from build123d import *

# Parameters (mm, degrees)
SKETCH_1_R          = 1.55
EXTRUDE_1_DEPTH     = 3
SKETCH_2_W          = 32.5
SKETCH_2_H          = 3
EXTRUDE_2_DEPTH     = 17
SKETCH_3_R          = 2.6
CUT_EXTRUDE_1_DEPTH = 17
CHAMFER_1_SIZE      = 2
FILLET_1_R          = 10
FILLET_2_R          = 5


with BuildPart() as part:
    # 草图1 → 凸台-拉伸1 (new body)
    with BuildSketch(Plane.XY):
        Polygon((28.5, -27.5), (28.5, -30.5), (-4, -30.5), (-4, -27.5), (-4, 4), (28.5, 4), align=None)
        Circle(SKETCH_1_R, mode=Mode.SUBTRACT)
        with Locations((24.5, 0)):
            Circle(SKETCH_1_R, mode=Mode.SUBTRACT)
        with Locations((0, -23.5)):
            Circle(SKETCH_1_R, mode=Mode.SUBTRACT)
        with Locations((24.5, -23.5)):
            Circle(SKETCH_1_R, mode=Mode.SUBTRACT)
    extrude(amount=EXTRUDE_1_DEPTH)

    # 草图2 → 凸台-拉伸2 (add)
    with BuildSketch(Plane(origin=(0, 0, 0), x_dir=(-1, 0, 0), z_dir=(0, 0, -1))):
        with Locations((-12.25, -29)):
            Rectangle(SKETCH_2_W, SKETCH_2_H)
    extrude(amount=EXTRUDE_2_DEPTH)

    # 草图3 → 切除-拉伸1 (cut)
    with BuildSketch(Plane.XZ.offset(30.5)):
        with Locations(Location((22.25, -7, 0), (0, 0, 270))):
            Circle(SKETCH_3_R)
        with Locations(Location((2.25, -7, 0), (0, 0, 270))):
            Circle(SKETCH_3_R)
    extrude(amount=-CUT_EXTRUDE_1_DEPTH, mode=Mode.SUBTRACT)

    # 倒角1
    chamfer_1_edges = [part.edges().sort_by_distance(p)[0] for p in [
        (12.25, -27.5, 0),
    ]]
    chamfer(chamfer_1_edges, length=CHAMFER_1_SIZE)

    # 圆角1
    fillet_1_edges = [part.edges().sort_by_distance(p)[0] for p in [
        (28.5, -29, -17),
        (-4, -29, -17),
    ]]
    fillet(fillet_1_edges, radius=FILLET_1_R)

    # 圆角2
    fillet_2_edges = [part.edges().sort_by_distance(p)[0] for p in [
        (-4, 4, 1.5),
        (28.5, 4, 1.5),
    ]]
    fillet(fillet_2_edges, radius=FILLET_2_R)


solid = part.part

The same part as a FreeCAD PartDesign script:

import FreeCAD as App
import Part
import Sketcher

V = App.Vector
Q = App.Units.Quantity


def edges_at(feature, points):
    """Names of the edges that pass closest to the given points."""
    edges = feature.Shape.Edges
    near = lambda p: min(range(len(edges)), key=lambda i: edges[i].distToShape(Part.Vertex(*p))[0])
    return sorted({f"Edge{near(p) + 1}" for p in points})

doc = App.newDocument("Part")
params = doc.addObject("Spreadsheet::Sheet", "Params")
for row, (alias, value) in enumerate([
    ("sketch1_diameter", "3.1 mm"),
    ("sketch1_width", "32.5 mm"),
    ("sketch1_height", "34.5 mm"),
    ("pad1_length", "3 mm"),
    ("sketch2_height", "3 mm"),
    ("sketch2_width", "32.5 mm"),
    ("pad2_length", "17 mm"),
    ("sketch3_diameter", "5.2 mm"),
    ("pocket1_length", "17 mm"),
    ("chamfer_size", "2 mm"),
    ("fillet_radius", "10 mm"),
    ("fillet2_radius", "5 mm"),
], start=1):
    params.set(f"A{row}", alias)
    params.set(f"B{row}", "=" + value)
    params.setAlias(f"B{row}", alias)

body = doc.addObject("PartDesign::Body", "Body")

sketch1 = doc.addObject("Sketcher::SketchObject", "Sketch")
body.addObject(sketch1)
sketch1.AttachmentSupport = (doc.XY_Plane, [""])
sketch1.MapMode = "FlatFace"
sketch1.addGeometry(Part.LineSegment(V(28.5, -30.5, 0), V(28.5, 4, 0)), False)
sketch1.addGeometry(Part.LineSegment(V(28.5, 4, 0), V(-4, 4, 0)), False)
sketch1.addGeometry(Part.LineSegment(V(-4, 4, 0), V(-4, -30.5, 0)), False)
sketch1.addGeometry(Part.LineSegment(V(-4, -30.5, 0), V(28.5, -30.5, 0)), False)
sketch1.addGeometry(Part.Circle(V(24.5, -23.5, 0), V(0, 0, 1), 1.55), False)
sketch1.addGeometry(Part.Circle(V(0, -23.5, 0), V(0, 0, 1), 1.55), False)
sketch1.addGeometry(Part.Circle(V(24.5, 0, 0), V(0, 0, 1), 1.55), False)
sketch1.addGeometry(Part.Circle(V(0, 0, 0), V(0, 0, 1), 1.55), False)
sketch1.addConstraint(Sketcher.Constraint("Coincident", 0, 2, 1, 1))
sketch1.addConstraint(Sketcher.Constraint("Coincident", 1, 2, 2, 1))
sketch1.addConstraint(Sketcher.Constraint("Coincident", 2, 2, 3, 1))
sketch1.addConstraint(Sketcher.Constraint("Coincident", 3, 2, 0, 1))
sketch1.addConstraint(Sketcher.Constraint("Vertical", 0))
sketch1.addConstraint(Sketcher.Constraint("Horizontal", 1))
sketch1.addConstraint(Sketcher.Constraint("Vertical", 2))
sketch1.addConstraint(Sketcher.Constraint("Horizontal", 3))
sketch1.addConstraint(Sketcher.Constraint("Coincident", 7, 3, -1, 1))
sketch1.addConstraint(Sketcher.Constraint("Equal", 4, 5))
sketch1.addConstraint(Sketcher.Constraint("Equal", 5, 6))
sketch1.addConstraint(Sketcher.Constraint("Equal", 6, 7))
sketch1.addConstraint(Sketcher.Constraint("PointOnObject", 5, 3, -2))
sketch1.addConstraint(Sketcher.Constraint("PointOnObject", 6, 3, -1))
sketch1.addConstraint(Sketcher.Constraint("Horizontal", 4, 3, 5, 3))
sketch1.addConstraint(Sketcher.Constraint("Vertical", 4, 3, 6, 3))
sketch1.addConstraint(Sketcher.Constraint("Diameter", 4, Q("3.1 mm")))
sketch1.addConstraint(Sketcher.Constraint("DistanceX", 1, 2, 1, 1, Q("32.5 mm")))
sketch1.addConstraint(Sketcher.Constraint("DistanceY", 0, 1, 0, 2, Q("34.5 mm")))
sketch1.addConstraint(Sketcher.Constraint("DistanceY", -1, 1, 0, 2, Q("4 mm")))
sketch1.addConstraint(Sketcher.Constraint("DistanceX", 1, 2, -1, 1, Q("4 mm")))
sketch1.addConstraint(Sketcher.Constraint("DistanceX", 6, 3, 0, 2, Q("4 mm")))
sketch1.addConstraint(Sketcher.Constraint("DistanceY", 2, 2, 5, 3, Q("7 mm")))
sketch1.setExpression("Constraints[16]", "Params.sketch1_diameter")
sketch1.setExpression("Constraints[17]", "Params.sketch1_width")
sketch1.setExpression("Constraints[18]", "Params.sketch1_height")
pad1 = doc.addObject("PartDesign::Pad", "Pad")
body.addObject(pad1)
pad1.Profile = sketch1
pad1.setExpression("Length", "Params.pad1_length")

sketch2 = doc.addObject("Sketcher::SketchObject", "Sketch001")
body.addObject(sketch2)
sketch2.AttachmentSupport = (doc.XY_Plane, [""])
sketch2.MapMode = "FlatFace"
sketch2.addGeometry(Part.LineSegment(V(28.5, -27.5, 0), V(28.5, -30.5, 0)), False)
sketch2.addGeometry(Part.LineSegment(V(28.5, -30.5, 0), V(-4, -30.5, 0)), False)
sketch2.addGeometry(Part.LineSegment(V(-4, -30.5, 0), V(-4, -27.5, 0)), False)
sketch2.addGeometry(Part.LineSegment(V(-4, -27.5, 0), V(28.5, -27.5, 0)), False)
sketch2.addConstraint(Sketcher.Constraint("Coincident", 0, 2, 1, 1))
sketch2.addConstraint(Sketcher.Constraint("Coincident", 1, 2, 2, 1))
sketch2.addConstraint(Sketcher.Constraint("Coincident", 2, 2, 3, 1))
sketch2.addConstraint(Sketcher.Constraint("Coincident", 3, 2, 0, 1))
sketch2.addConstraint(Sketcher.Constraint("Vertical", 0))
sketch2.addConstraint(Sketcher.Constraint("Horizontal", 1))
sketch2.addConstraint(Sketcher.Constraint("Vertical", 2))
sketch2.addConstraint(Sketcher.Constraint("Horizontal", 3))
sketch2.addConstraint(Sketcher.Constraint("DistanceY", 0, 2, 0, 1, Q("3 mm")))
sketch2.addConstraint(Sketcher.Constraint("DistanceX", 1, 2, 1, 1, Q("32.5 mm")))
sketch2.addConstraint(Sketcher.Constraint("DistanceX", 1, 2, -1, 1, Q("4 mm")))
sketch2.addConstraint(Sketcher.Constraint("DistanceY", 0, 2, -1, 1, Q("30.5 mm")))
sketch2.setExpression("Constraints[8]", "Params.sketch2_height")
sketch2.setExpression("Constraints[9]", "Params.sketch2_width")
pad2 = doc.addObject("PartDesign::Pad", "Pad001")
body.addObject(pad2)
pad2.Profile = sketch2
pad2.setExpression("Length", "Params.pad2_length")
pad2.Reversed = True

sketch3 = doc.addObject("Sketcher::SketchObject", "Sketch002")
body.addObject(sketch3)
sketch3.AttachmentSupport = (doc.XZ_Plane, [""])
sketch3.MapMode = "FlatFace"
sketch3.AttachmentOffset = App.Placement(V(0, 0, 30.5), App.Rotation())
sketch3.addGeometry(Part.Circle(V(22.25, -7, 0), V(0, 0, 1), 2.6), False)
sketch3.addGeometry(Part.Circle(V(2.25, -7, 0), V(0, 0, 1), 2.6), False)
sketch3.addConstraint(Sketcher.Constraint("Equal", 0, 1))
sketch3.addConstraint(Sketcher.Constraint("Horizontal", 0, 3, 1, 3))
sketch3.addConstraint(Sketcher.Constraint("Diameter", 0, Q("5.2 mm")))
sketch3.addConstraint(Sketcher.Constraint("DistanceY", 0, 3, -1, 1, Q("7 mm")))
sketch3.addConstraint(Sketcher.Constraint("DistanceX", 1, 3, 0, 3, Q("20 mm")))
sketch3.addConstraint(Sketcher.Constraint("DistanceX", -1, 1, 0, 3, Q("22.25 mm")))
sketch3.setExpression("Constraints[2]", "Params.sketch3_diameter")
pocket1 = doc.addObject("PartDesign::Pocket", "Pocket")
body.addObject(pocket1)
pocket1.Profile = sketch3
pocket1.setExpression("Length", "Params.pocket1_length")
doc.recompute()

chamfer = doc.addObject("PartDesign::Chamfer", "Chamfer")
body.addObject(chamfer)
chamfer.Base = (pocket1, edges_at(pocket1, [(12.25, -27.5, 0)]))
chamfer.setExpression("Size", "Params.chamfer_size")
doc.recompute()

fillet = doc.addObject("PartDesign::Fillet", "Fillet")
body.addObject(fillet)
fillet.Base = (chamfer, edges_at(chamfer, [(28.5, -29, -17), (-4, -29, -17)]))
fillet.setExpression("Radius", "Params.fillet_radius")
doc.recompute()

fillet2 = doc.addObject("PartDesign::Fillet", "Fillet001")
body.addObject(fillet2)
fillet2.Base = (fillet, edges_at(fillet, [(-4, 4, 1.5), (28.5, 4, 1.5)]))
fillet2.setExpression("Radius", "Params.fillet2_radius")

doc.recompute()
